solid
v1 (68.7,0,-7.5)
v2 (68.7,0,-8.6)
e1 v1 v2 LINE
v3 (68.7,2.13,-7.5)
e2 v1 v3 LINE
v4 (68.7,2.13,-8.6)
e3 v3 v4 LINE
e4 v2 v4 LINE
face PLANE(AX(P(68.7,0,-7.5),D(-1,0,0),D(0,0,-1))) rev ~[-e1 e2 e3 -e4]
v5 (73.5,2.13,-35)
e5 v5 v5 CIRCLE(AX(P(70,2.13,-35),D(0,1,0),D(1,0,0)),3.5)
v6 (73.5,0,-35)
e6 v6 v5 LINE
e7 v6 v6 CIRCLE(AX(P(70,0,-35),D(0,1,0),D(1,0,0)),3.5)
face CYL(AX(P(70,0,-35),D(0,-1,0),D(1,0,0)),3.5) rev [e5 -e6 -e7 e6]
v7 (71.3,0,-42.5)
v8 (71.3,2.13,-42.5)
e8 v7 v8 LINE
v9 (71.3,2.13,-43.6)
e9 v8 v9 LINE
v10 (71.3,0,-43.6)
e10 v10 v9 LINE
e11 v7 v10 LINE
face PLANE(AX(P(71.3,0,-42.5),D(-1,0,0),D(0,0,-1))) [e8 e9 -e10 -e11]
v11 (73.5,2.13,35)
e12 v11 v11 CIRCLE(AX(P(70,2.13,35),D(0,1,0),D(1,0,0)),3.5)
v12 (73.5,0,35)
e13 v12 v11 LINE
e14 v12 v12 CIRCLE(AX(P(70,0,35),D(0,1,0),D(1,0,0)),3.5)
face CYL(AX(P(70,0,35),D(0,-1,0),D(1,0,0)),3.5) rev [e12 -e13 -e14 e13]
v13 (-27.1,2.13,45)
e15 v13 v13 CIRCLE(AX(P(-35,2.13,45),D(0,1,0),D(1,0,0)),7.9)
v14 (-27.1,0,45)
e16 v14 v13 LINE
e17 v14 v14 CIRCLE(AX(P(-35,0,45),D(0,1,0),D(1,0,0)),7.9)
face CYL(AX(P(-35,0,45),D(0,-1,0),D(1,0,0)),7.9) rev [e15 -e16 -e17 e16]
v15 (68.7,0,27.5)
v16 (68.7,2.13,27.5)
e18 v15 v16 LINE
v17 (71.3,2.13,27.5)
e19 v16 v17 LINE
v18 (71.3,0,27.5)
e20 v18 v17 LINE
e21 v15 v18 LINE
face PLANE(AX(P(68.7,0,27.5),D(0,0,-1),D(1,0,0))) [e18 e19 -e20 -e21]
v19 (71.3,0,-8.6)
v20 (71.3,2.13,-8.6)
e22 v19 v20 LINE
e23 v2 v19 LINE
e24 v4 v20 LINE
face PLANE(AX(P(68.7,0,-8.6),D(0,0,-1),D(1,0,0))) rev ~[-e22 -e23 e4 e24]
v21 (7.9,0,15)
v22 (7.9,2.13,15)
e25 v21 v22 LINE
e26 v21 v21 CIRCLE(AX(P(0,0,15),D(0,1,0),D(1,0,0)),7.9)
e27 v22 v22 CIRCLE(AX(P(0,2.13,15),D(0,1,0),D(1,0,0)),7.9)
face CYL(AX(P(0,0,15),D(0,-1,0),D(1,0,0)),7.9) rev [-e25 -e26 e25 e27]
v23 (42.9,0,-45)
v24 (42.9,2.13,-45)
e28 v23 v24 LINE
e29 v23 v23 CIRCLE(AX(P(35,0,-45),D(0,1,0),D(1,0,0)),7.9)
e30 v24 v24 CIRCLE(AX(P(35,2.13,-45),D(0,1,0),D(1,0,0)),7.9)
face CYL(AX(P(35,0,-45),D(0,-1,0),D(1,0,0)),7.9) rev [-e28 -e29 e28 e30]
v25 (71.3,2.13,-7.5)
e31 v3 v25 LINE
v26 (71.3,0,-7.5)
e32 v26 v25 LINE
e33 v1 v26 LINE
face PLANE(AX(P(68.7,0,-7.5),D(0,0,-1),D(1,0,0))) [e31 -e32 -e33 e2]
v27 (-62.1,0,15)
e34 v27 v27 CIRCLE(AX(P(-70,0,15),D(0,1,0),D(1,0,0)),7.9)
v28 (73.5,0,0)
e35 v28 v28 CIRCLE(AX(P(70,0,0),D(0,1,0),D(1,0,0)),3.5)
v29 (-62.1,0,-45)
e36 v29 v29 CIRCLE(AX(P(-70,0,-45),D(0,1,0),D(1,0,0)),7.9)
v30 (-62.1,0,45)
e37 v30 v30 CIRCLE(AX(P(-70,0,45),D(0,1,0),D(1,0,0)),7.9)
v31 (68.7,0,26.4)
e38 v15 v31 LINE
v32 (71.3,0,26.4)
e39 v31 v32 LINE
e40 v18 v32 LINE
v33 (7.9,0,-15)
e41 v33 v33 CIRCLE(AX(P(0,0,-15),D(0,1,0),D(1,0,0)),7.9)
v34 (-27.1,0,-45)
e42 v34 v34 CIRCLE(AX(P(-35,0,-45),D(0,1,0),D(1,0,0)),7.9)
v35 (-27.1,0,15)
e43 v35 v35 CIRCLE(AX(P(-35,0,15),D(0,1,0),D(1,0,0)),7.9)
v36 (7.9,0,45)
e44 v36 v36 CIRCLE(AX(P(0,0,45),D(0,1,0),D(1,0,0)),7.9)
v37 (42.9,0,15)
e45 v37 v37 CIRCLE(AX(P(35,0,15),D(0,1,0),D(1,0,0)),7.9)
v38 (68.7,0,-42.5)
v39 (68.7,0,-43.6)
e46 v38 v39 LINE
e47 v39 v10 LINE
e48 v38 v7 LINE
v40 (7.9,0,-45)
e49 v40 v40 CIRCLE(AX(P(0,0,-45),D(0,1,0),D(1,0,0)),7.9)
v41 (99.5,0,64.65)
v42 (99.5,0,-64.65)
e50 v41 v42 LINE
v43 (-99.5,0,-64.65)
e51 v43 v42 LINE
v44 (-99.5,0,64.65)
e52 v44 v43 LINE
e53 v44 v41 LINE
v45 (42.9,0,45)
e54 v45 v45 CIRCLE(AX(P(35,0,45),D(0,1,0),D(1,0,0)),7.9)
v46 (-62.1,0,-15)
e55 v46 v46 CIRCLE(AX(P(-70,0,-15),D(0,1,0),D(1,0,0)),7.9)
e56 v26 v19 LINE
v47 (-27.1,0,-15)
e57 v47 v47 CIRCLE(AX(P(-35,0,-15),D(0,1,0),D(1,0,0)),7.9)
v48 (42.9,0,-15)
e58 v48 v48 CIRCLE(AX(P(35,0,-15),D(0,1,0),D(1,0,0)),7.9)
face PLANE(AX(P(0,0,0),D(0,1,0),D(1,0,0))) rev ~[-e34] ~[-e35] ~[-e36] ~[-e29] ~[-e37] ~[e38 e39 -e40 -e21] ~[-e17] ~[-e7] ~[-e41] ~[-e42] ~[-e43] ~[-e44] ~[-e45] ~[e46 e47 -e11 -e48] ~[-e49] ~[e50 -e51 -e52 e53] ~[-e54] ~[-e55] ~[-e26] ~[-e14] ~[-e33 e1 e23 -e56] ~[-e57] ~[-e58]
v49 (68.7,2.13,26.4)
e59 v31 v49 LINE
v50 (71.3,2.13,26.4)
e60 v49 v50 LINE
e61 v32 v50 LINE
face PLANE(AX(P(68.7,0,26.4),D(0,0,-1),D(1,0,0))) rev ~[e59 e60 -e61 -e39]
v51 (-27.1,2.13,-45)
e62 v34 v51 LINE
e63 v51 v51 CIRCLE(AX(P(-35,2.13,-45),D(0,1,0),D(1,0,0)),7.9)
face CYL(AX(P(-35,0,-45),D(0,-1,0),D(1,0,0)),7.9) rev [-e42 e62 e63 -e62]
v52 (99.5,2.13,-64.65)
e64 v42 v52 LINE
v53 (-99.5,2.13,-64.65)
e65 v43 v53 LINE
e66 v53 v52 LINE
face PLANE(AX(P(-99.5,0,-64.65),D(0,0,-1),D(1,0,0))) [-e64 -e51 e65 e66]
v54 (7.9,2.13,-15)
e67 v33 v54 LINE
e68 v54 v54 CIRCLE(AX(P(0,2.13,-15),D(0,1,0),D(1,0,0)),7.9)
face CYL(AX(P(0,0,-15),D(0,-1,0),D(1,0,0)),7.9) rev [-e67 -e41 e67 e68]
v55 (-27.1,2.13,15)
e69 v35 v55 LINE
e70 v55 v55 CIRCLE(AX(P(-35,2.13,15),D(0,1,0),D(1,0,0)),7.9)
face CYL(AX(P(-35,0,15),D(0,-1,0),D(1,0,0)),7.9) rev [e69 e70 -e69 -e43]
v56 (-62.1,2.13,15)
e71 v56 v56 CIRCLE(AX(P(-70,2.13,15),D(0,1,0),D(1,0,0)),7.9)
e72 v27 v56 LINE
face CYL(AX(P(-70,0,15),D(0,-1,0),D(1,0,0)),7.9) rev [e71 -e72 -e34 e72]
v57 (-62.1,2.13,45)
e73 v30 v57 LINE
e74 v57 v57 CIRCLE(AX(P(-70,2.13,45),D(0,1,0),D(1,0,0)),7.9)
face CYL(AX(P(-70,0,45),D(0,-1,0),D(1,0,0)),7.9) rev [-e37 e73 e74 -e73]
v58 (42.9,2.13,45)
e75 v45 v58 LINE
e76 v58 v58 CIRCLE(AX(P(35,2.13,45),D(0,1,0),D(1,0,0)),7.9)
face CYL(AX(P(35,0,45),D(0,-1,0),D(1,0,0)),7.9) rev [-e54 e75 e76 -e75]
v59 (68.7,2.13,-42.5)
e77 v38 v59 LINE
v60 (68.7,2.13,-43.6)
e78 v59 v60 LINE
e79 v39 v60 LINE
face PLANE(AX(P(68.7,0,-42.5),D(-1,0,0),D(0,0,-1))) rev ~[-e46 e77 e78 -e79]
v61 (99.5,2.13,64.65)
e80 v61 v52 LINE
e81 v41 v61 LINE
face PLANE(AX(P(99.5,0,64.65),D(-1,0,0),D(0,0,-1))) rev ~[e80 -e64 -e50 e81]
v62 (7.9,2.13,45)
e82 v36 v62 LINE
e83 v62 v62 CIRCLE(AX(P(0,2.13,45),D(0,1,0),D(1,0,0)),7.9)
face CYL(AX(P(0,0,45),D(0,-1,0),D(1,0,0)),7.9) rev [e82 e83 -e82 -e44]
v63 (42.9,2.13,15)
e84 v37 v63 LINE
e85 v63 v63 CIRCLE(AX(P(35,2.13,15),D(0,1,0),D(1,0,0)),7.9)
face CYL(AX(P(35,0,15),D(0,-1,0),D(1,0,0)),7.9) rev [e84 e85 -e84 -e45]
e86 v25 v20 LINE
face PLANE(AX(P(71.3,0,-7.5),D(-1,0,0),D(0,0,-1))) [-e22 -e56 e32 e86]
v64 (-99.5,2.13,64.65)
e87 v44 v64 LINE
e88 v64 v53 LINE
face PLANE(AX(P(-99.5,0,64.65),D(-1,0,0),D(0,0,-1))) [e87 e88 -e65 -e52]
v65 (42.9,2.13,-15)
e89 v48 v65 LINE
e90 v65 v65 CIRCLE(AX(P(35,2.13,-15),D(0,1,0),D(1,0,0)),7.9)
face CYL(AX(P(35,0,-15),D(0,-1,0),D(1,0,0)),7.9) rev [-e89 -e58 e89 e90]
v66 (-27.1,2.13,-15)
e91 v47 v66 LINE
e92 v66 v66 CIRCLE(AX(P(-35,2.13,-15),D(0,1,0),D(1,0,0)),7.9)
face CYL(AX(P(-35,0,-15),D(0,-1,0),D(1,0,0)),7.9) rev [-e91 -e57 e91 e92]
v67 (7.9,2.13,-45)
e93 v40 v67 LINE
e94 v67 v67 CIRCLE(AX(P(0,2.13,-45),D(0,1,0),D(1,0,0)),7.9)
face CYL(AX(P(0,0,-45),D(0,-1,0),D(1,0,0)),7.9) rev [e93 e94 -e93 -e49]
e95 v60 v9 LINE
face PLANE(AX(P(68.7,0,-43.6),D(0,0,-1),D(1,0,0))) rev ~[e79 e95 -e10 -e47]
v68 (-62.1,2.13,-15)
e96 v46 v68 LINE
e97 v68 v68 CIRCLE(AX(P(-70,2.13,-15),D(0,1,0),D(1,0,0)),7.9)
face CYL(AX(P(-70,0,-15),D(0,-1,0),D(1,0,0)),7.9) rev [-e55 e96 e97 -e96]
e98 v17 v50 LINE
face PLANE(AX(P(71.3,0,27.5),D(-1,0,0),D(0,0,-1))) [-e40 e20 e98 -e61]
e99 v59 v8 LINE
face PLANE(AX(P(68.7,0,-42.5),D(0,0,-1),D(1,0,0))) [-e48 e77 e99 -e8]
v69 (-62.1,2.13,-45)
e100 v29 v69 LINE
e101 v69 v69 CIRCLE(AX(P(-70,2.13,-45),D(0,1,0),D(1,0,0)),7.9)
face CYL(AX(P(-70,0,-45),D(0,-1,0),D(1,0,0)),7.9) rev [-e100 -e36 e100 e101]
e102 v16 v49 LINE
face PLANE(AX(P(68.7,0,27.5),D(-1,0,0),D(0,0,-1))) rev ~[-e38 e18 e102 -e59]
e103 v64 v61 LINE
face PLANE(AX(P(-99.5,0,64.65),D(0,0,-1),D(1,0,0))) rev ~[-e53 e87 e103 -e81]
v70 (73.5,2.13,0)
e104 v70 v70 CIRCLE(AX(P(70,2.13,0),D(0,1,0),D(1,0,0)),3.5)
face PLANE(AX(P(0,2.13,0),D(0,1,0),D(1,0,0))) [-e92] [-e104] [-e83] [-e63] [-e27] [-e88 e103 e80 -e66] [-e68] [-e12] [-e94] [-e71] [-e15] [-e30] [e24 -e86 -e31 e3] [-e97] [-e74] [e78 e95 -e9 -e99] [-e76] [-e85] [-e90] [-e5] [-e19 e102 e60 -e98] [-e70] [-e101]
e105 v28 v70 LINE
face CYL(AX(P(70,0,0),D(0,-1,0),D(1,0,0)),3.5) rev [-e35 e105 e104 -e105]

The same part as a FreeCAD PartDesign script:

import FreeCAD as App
import Part
import Sketcher
from FreeCAD import Vector
Q = App.Units.Quantity

doc = App.newDocument("Part")
params = doc.addObject("Spreadsheet::Sheet", "Params")
for row, (alias, value) in enumerate([
    ("sketch1_diameter", "7 mm"),
    ("sketch1_diameter2", "15.8 mm"),
    ("sketch1_width", "199 mm"),
    ("sketch1_width2", "2.6 mm"),
    ("sketch1_height", "129.3 mm"),
    ("pad1_length", "2.13 mm"),
], start=1):
    params.set(f"A{row}", alias)
    params.set(f"B{row}", "=" + value)
    params.setAlias(f"B{row}", alias)

body = doc.addObject("PartDesign::Body", "Body")

# Sketch on XZ plane
sketch1 = body.newObject("Sketcher::SketchObject", "Sketch")
sketch1.AttachmentSupport = (doc.getObject("XZ_Plane"), [""])
sketch1.MapMode = "FlatFace"
sketch1.addGeometry([
    Part.LineSegment(Vector(-99.5, -64.7, 0), Vector(-99.5, 64.7, 0)),  # 0
    Part.LineSegment(Vector(-99.5, 64.7, 0), Vector(99.5, 64.7, 0)),  # 1
    Part.LineSegment(Vector(99.5, 64.7, 0), Vector(99.5, -64.7, 0)),  # 2
    Part.LineSegment(Vector(99.5, -64.7, 0), Vector(-99.5, -64.7, 0)),  # 3
    Part.Circle(Vector(-70, 45, 0), Vector(0, 0, 1), 7.9),  # 4
    Part.Circle(Vector(-35, 45, 0), Vector(0, 0, 1), 7.9),  # 5
    Part.Circle(Vector(-70, 15, 0), Vector(0, 0, 1), 7.9),  # 6
    Part.Circle(Vector(-35, 15, 0), Vector(0, 0, 1), 7.9),  # 7
    Part.Circle(Vector(0, 45, 0), Vector(0, 0, 1), 7.9),  # 8
    Part.Circle(Vector(35, 45, 0), Vector(0, 0, 1), 7.9),  # 9
    Part.Circle(Vector(70, 35, 0), Vector(0, 0, 1), 3.5),  # 10
    Part.LineSegment(Vector(71.3, 27.5, 0), Vector(68.7, 27.5, 0)),  # 11
    Part.LineSegment(Vector(68.7, 27.5, 0), Vector(68.7, 26.4, 0)),  # 12
    Part.LineSegment(Vector(68.7, 26.4, 0), Vector(71.3, 26.4, 0)),  # 13
    Part.LineSegment(Vector(71.3, 26.4, 0), Vector(71.3, 27.5, 0)),  # 14
    Part.Circle(Vector(0, 15, 0), Vector(0, 0, 1), 7.9),  # 15
    Part.Circle(Vector(35, 15, 0), Vector(0, 0, 1), 7.9),  # 16
    Part.Circle(Vector(-70, -15, 0), Vector(0, 0, 1), 7.9),  # 17
    Part.Circle(Vector(-35, -15, 0), Vector(0, 0, 1), 7.9),  # 18
    Part.Circle(Vector(-70, -45, 0), Vector(0, 0, 1), 7.9),  # 19
    Part.Circle(Vector(-35, -45, 0), Vector(0, 0, 1), 7.9),  # 20
    Part.Circle(Vector(0, -15, 0), Vector(0, 0, 1), 7.9),  # 21
    Part.Circle(Vector(35, -15, 0), Vector(0, 0, 1), 7.9),  # 22
    Part.Circle(Vector(70, 0, 0), Vector(0, 0, 1), 3.5),  # 23
    Part.LineSegment(Vector(71.3, -7.5, 0), Vector(68.7, -7.5, 0)),  # 24
    Part.LineSegment(Vector(68.7, -7.5, 0), Vector(68.7, -8.6, 0)),  # 25
    Part.LineSegment(Vector(68.7, -8.6, 0), Vector(71.3, -8.6, 0)),  # 26
    Part.LineSegment(Vector(71.3, -8.6, 0), Vector(71.3, -7.5, 0)),  # 27
    Part.Circle(Vector(0, -45, 0), Vector(0, 0, 1), 7.9),  # 28
    Part.Circle(Vector(35, -45, 0), Vector(0, 0, 1), 7.9),  # 29
    Part.Circle(Vector(70, -35, 0), Vector(0, 0, 1), 3.5),  # 30
    Part.LineSegment(Vector(71.3, -42.5, 0), Vector(68.7, -42.5, 0)),  # 31
    Part.LineSegment(Vector(68.7, -42.5, 0), Vector(68.7, -43.6, 0)),  # 32
    Part.LineSegment(Vector(68.7, -43.6, 0), Vector(71.3, -43.6, 0)),  # 33
    Part.LineSegment(Vector(71.3, -43.6, 0), Vector(71.3, -42.5, 0)),  # 34
], False)
sketch1.addConstraint([
    Sketcher.Constraint("Coincident", 0, 2, 1, 1),
    Sketcher.Constraint("Coincident", 1, 2, 2, 1),
    Sketcher.Constraint("Coincident", 2, 2, 3, 1),
    Sketcher.Constraint("Coincident", 3, 2, 0, 1),
    Sketcher.Constraint("Coincident", 11, 2, 12, 1),
    Sketcher.Constraint("Coincident", 12, 2, 13, 1),
    Sketcher.Constraint("Coincident", 13, 2, 14, 1),
    Sketcher.Constraint("Coincident", 14, 2, 11, 1),
    Sketcher.Constraint("Coincident", 24, 2, 25, 1),
    Sketcher.Constraint("Coincident", 25, 2, 26, 1),
    Sketcher.Constraint("Coincident", 26, 2, 27, 1),
    Sketcher.Constraint("Coincident", 27, 2, 24, 1),
    Sketcher.Constraint("Coincident", 31, 2, 32, 1),
    Sketcher.Constraint("Coincident", 32, 2, 33, 1),
    Sketcher.Constraint("Coincident", 33, 2, 34, 1),
    Sketcher.Constraint("Coincident", 34, 2, 31, 1),
    Sketcher.Constraint("Vertical", 0),
    Sketcher.Constraint("Horizontal", 1),
    Sketcher.Constraint("Vertical", 2),
    Sketcher.Constraint("Horizontal", 3),
    Sketcher.Constraint("Horizontal", 11),
    Sketcher.Constraint("Vertical", 12),
    Sketcher.Constraint("Horizontal", 13),
    Sketcher.Constraint("Vertical", 14),
    Sketcher.Constraint("Horizontal", 24),
    Sketcher.Constraint("Vertical", 25),
    Sketcher.Constraint("Horizontal", 26),
    Sketcher.Constraint("Vertical", 27),
    Sketcher.Constraint("Horizontal", 31),
    Sketcher.Constraint("Vertical", 32),
    Sketcher.Constraint("Horizontal", 33),
    Sketcher.Constraint("Vertical", 34),
    Sketcher.Constraint("Equal", 4, 5),
    Sketcher.Constraint("Equal", 5, 6),
    Sketcher.Constraint("Equal", 6, 7),
    Sketcher.Constraint("Equal", 7, 8),
    Sketcher.Constraint("Equal", 8, 9),
    Sketcher.Constraint("Equal", 9, 15),
    Sketcher.Constraint("Equal", 15, 16),
    Sketcher.Constraint("Equal", 16, 17),
    Sketcher.Constraint("Equal", 17, 18),
    Sketcher.Constraint("Equal", 18, 19),
    Sketcher.Constraint("Equal", 19, 20),
    Sketcher.Constraint("Equal", 20, 21),
    Sketcher.Constraint("Equal", 21, 22),
    Sketcher.Constraint("Equal", 10, 23),
    Sketcher.Constraint("Equal", 22, 28),
    Sketcher.Constraint("Equal", 28, 29),
    Sketcher.Constraint("Equal", 23, 30),
    Sketcher.Constraint("Symmetric", 16, 3, 18, 3, -1, 1),
    Sketcher.Constraint("Symmetric", 9, 3, 20, 3, -1, 1),
    Sketcher.Constraint("Symmetric", 15, 3, 21, 3, -1, 1),
    Sketcher.Constraint("Symmetric", 7, 3, 22, 3, -1, 1),
    Sketcher.Constraint("Symmetric", 8, 3, 28, 3, -1, 1),
    Sketcher.Constraint("Symmetric", 5, 3, 29, 3, -1, 1),
    Sketcher.Constraint("Symmetric", 0, 2, 2, 2, -1, 1),
    Sketcher.Constraint("Symmetric", 5, 3, 9, 3, -2),
    Sketcher.Constraint("Symmetric", 7, 3, 16, 3, -2),
    Sketcher.Constraint("Symmetric", 6, 3, 17, 3, -1),
    Sketcher.Constraint("Symmetric", 4, 3, 19, 3, -1),
    Sketcher.Constraint("Symmetric", 10, 3, 30, 3, -1),
    Sketcher.Constraint("PointOnObject", 8, 3, -2),
    Sketcher.Constraint("PointOnObject", 15, 3, -2),
    Sketcher.Constraint("PointOnObject", 23, 3, -1),
    Sketcher.Constraint("Horizontal", 4, 3, 5, 3),
    Sketcher.Constraint("Horizontal", 6, 3, 7, 3),
    Sketcher.Constraint("Horizontal", 5, 3, 8, 3),
    Sketcher.Constraint("Horizontal", 7, 3, 15, 3),
    Sketcher.Constraint("Vertical", 4, 3, 6, 3),
    Sketcher.Constraint("Vertical", 5, 3, 7, 3),
    Sketcher.Constraint("Vertical", 10, 3, 23, 3),
    Sketcher.Constraint("Vertical", 12, 2, 24, 2),
    Sketcher.Constraint("Vertical", 14, 2, 26, 2),
    Sketcher.Constraint("Vertical", 25, 2, 31, 2),
    Sketcher.Constraint("Vertical", 27, 2, 33, 2),
    Sketcher.Constraint("Equal", 14, 25),
    Sketcher.Constraint("Equal", 27, 32),
    Sketcher.Constraint("Diameter", 10, Q("7 mm")),
    Sketcher.Constraint("Diameter", 4, Q("15.8 mm")),
    Sketcher.Constraint("DistanceX", 1, 1, 1, 2, Q("199 mm")),
    Sketcher.Constraint("DistanceX", 11, 2, 11, 1, Q("2.6 mm")),
    Sketcher.Constraint("DistanceY", 0, 1, 0, 2, Q("129.3 mm")),
    Sketcher.Constraint("DistanceY", 12, 2, 12, 1, Q("1.1 mm")),
    Sketcher.Constraint("DistanceX", 4, 3, -1, 1, Q("70 mm")),
    Sketcher.Constraint("DistanceY", -1, 1, 4, 3, Q("45 mm")),
    Sketcher.Constraint("DistanceX", 5, 3, -1, 1, Q("35 mm")),
    Sketcher.Constraint("DistanceY", -1, 1, 6, 3, Q("15 mm")),
    Sketcher.Constraint("DistanceX", -1, 1, 10, 3, Q("70 mm")),
    Sketcher.Constraint("DistanceY", -1, 1, 10, 3, Q("35 mm")),
    Sketcher.Constraint("DistanceY", 25, 2, 12, 2, Q("35 mm")),
    Sketcher.Constraint("DistanceY", 31, 2, 24, 2, Q("35 mm")),
    Sketcher.Constraint("DistanceX", -1, 1, 11, 2, Q("68.7 mm")),
    Sketcher.Constraint("DistanceY", -1, 1, 11, 2, Q("27.5 mm")),
])
sketch1.setExpression("Constraints[77]", "Params.sketch1_diameter")
sketch1.setExpression("Constraints[78]", "Params.sketch1_diameter2")
sketch1.setExpression("Constraints[79]", "Params.sketch1_width")
sketch1.setExpression("Constraints[80]", "Params.sketch1_width2")
sketch1.setExpression("Constraints[81]", "Params.sketch1_height")
pad1 = body.newObject("PartDesign::Pad", "Pad")
pad1.Profile = sketch1
pad1.setExpression("Length", "Params.pad1_length")
pad1.Reversed = True

doc.recompute()
